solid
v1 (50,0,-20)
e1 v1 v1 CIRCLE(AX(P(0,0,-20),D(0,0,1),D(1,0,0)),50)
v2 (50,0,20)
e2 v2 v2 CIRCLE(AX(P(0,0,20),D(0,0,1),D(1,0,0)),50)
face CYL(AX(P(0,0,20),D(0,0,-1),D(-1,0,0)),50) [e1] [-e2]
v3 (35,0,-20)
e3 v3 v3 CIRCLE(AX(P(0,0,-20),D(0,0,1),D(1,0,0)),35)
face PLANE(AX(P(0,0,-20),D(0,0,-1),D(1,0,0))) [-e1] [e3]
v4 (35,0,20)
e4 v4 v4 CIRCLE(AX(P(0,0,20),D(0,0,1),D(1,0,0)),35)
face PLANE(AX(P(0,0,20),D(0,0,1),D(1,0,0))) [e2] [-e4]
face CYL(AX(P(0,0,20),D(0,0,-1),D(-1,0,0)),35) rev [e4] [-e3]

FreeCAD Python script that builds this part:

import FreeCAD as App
import Part
import Sketcher
from FreeCAD import Vector

doc = App.newDocument("Part")
body = doc.addObject("PartDesign::Body", "Body")

sketch1 = body.newObject("Sketcher::SketchObject", "Sketch")
sketch1.AttachmentSupport = (doc.getObject("XY_Plane"), [""])
sketch1.MapMode = "FlatFace"
sketch1.addGeometry(Part.Circle(Vector(0, 0, 0), Vector(0, 0, 1), 50), False)
sketch1.addGeometry(Part.Circle(Vector(0, 0, 0), Vector(0, 0, 1), 35), False)
sketch1.addConstraint(Sketcher.Constraint("Coincident", 0, 3, -1, 1))
sketch1.addConstraint(Sketcher.Constraint("Coincident", 1, 3, -1, 1))
sketch1.addConstraint(Sketcher.Constraint("Diameter", 0, 100.0))
sketch1.addConstraint(Sketcher.Constraint("Diameter", 1, 70.0))
pad1 = body.newObject("PartDesign::Pad", "Pad")
pad1.Profile = sketch1
pad1.Length = 20
doc.recompute()

mirrored = body.newObject("PartDesign::Mirrored", "Mirrored")
mirrored.Originals = [pad1]
mirrored.MirrorPlane = (doc.getObject("XY_Plane"), [""])
body.Tip = mirrored

doc.recompute()
